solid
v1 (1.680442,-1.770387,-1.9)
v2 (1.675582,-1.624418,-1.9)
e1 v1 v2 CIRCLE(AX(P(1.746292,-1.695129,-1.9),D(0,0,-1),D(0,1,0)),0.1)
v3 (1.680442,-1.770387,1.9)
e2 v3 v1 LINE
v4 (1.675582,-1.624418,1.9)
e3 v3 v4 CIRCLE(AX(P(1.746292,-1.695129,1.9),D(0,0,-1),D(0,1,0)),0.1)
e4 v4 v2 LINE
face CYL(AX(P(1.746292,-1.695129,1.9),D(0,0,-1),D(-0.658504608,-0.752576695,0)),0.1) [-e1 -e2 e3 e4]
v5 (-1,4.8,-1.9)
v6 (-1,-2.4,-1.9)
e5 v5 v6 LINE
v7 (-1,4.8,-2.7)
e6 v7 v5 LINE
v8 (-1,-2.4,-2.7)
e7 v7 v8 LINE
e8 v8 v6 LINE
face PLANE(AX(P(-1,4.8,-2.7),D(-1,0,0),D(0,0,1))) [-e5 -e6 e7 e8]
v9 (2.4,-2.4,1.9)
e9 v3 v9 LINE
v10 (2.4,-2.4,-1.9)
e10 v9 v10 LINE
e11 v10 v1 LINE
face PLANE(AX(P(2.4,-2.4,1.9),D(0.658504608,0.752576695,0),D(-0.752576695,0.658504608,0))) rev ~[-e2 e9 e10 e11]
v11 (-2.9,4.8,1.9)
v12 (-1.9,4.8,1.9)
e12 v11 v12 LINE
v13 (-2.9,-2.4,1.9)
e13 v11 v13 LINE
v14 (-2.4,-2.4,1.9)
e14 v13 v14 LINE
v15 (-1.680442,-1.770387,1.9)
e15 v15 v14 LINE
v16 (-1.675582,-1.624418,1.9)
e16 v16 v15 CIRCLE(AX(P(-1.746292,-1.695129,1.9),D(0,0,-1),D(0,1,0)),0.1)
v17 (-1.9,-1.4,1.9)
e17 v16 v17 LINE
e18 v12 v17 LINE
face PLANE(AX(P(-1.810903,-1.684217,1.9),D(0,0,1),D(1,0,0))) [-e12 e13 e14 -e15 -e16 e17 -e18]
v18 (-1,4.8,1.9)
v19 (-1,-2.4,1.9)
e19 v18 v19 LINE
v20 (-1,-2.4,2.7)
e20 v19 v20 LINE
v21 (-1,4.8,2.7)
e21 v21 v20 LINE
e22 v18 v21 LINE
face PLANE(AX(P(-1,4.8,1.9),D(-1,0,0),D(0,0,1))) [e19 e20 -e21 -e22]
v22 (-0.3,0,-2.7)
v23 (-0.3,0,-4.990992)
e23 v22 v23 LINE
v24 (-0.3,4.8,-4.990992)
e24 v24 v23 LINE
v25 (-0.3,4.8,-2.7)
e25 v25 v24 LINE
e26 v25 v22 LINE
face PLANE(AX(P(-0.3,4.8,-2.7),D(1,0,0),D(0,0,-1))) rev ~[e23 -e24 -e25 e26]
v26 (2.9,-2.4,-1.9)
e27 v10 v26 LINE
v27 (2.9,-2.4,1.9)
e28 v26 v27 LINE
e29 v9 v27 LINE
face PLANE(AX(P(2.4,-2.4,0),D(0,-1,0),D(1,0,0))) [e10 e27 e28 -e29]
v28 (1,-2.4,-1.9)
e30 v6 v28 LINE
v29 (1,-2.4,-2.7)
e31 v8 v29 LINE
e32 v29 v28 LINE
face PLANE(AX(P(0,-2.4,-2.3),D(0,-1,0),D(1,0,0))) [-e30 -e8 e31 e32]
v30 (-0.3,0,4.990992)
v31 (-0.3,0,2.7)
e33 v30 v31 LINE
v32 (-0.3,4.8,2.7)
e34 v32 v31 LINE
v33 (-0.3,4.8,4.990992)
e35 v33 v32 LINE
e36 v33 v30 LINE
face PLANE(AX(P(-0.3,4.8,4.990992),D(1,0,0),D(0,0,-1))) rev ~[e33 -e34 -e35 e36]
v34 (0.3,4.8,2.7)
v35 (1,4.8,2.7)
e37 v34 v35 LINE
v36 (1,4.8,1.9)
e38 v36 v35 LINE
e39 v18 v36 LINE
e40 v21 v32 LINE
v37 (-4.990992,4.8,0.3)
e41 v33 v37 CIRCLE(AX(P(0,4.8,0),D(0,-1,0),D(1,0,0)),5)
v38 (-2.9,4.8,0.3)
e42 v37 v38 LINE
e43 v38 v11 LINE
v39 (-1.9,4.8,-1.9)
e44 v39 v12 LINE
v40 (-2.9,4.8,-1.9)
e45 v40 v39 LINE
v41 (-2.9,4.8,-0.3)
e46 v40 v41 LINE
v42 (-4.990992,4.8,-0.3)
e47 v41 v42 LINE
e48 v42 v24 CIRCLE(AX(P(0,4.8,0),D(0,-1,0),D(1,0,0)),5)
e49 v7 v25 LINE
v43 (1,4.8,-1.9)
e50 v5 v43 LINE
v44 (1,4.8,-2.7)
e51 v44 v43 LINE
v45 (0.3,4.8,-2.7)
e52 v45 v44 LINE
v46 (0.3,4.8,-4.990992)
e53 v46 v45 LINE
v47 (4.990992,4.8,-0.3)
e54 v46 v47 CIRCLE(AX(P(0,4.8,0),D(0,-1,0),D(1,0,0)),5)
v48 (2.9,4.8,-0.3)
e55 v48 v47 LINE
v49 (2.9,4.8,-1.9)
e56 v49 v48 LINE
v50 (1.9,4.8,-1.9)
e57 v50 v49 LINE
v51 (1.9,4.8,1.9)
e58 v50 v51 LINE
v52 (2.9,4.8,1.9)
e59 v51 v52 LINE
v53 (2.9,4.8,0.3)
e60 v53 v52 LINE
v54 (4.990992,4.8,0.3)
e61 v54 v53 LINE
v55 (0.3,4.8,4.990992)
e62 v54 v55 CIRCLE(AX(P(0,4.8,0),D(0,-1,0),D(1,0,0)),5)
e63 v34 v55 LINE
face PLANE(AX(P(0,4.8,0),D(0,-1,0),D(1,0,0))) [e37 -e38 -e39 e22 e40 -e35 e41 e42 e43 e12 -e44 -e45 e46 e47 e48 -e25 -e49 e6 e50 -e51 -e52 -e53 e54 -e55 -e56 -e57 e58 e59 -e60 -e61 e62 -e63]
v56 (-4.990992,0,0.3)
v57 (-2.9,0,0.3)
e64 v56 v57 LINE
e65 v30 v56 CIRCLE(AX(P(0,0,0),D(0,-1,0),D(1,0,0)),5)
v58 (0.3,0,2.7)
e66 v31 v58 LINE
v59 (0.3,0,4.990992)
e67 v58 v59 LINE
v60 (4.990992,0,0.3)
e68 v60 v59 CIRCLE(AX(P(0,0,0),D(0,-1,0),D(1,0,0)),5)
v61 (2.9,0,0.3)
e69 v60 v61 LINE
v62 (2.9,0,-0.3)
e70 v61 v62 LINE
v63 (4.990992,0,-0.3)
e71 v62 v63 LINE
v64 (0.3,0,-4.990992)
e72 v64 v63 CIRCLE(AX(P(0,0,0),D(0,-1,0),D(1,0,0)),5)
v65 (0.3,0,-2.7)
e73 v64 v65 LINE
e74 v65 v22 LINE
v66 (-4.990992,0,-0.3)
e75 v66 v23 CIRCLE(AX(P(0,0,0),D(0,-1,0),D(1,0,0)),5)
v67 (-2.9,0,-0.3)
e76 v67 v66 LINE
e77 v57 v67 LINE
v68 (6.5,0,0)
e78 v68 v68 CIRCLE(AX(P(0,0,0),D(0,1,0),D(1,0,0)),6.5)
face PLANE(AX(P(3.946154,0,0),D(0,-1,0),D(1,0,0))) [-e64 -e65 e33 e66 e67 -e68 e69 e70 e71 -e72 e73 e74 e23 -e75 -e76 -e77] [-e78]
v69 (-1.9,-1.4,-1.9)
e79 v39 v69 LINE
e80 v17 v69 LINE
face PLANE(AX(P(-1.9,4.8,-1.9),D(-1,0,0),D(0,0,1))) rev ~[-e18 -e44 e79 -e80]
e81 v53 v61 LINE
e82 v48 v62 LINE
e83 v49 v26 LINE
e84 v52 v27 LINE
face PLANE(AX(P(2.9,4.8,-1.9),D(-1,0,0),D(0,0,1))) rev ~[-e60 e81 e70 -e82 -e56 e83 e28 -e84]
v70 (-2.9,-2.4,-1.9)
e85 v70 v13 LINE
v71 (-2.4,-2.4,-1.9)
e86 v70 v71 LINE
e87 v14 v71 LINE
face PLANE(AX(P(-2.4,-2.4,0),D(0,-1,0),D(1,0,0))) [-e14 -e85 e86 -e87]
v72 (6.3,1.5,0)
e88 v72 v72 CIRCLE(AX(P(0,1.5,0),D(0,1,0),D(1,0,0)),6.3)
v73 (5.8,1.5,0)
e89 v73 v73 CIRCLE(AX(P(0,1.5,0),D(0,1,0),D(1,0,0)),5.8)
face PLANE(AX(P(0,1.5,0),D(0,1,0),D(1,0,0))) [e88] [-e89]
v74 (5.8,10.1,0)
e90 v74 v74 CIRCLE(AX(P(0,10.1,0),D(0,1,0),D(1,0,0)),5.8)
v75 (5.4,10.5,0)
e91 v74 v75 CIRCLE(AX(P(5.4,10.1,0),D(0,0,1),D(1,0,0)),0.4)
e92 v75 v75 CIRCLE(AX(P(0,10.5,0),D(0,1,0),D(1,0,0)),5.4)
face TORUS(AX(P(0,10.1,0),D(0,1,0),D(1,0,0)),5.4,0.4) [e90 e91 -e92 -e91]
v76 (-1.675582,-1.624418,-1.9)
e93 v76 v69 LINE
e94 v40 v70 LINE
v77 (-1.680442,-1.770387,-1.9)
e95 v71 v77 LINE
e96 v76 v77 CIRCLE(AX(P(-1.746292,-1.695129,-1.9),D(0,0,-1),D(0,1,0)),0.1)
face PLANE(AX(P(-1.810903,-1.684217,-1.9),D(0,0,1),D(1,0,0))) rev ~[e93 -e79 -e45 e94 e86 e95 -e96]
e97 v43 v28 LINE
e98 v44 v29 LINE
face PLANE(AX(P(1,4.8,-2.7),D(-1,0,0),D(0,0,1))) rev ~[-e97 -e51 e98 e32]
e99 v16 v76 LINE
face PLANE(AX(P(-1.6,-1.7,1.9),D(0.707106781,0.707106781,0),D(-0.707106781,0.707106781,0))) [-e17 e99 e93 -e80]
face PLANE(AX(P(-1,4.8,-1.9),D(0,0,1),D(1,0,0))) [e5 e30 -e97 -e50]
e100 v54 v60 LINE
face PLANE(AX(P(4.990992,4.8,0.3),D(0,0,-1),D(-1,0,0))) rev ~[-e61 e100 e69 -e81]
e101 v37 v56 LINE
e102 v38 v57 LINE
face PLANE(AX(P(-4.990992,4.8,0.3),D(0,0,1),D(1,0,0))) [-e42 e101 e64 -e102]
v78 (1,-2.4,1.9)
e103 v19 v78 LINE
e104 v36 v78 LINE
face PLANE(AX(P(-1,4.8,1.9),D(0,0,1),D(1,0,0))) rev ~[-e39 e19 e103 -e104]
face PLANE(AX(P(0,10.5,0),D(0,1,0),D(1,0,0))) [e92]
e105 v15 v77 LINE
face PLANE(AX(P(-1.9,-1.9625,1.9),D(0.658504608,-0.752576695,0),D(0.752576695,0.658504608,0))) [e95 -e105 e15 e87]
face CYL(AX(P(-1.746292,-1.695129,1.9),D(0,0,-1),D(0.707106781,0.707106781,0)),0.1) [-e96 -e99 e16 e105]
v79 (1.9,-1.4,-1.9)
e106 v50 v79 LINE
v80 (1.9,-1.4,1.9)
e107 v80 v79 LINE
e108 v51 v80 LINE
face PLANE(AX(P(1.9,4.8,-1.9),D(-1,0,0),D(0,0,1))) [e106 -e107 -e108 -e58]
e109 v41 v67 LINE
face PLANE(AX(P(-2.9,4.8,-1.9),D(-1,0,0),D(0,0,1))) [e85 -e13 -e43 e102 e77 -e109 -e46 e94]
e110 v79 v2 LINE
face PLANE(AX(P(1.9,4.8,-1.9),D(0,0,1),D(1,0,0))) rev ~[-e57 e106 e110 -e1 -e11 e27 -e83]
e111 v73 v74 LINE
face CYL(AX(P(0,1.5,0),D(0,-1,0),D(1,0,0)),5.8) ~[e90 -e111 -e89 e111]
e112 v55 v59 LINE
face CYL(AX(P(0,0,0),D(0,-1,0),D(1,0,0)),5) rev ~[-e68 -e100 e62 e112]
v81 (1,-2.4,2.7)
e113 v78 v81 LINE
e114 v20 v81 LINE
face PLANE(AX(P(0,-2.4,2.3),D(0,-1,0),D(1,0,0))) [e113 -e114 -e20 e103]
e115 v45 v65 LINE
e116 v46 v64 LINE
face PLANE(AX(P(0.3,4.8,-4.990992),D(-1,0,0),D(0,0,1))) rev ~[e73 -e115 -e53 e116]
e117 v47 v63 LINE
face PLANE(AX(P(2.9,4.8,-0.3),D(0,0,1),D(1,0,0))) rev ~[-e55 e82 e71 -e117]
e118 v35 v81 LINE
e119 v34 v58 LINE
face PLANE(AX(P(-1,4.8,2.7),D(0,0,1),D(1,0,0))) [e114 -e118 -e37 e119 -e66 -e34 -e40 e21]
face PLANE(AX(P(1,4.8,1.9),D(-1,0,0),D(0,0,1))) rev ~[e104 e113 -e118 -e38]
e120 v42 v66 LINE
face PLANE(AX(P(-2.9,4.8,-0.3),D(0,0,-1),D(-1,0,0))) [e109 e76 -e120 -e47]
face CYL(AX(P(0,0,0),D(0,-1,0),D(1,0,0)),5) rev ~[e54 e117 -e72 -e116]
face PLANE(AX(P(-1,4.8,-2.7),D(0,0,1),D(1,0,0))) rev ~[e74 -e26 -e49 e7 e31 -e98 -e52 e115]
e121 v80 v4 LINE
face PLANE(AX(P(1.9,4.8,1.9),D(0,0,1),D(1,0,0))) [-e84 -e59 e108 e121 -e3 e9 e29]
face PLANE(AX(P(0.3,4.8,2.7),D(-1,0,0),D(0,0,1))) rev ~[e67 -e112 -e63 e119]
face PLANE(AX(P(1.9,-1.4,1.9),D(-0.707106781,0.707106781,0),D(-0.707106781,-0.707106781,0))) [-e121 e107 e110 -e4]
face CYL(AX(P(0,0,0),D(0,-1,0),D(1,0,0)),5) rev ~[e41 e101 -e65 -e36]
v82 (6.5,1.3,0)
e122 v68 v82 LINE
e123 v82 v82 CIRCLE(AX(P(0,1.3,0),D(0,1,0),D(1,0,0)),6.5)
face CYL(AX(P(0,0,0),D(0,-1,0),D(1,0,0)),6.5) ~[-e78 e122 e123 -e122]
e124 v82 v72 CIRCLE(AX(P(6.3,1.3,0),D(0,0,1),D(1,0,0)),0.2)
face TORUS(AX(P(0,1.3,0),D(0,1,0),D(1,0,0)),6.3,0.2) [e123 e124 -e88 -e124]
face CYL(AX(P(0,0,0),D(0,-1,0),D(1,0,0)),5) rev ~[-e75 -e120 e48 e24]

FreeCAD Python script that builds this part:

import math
import FreeCAD as App
import Part
import Sketcher
Q = App.Units.Quantity


def edges_at(feature, points):
    """Names of the edges that pass closest to the given points."""
    edges = feature.Shape.Edges
    near = lambda p: min(range(len(edges)), key=lambda i: edges[i].distToShape(Part.Vertex(*p))[0])
    return sorted({f"Edge{near(p) + 1}" for p in points})


def add_polygon(sketch, points):
    """Adds a closed chain of lines whose ends are joined by coincident constraints."""
    first, n = sketch.GeometryCount, len(points)
    for a, b in zip(points, points[1:] + points[:1]):
        sketch.addGeometry(Part.LineSegment(App.Vector(*a, 0), App.Vector(*b, 0)), False)
    for i in range(n):
        sketch.addConstraint(Sketcher.Constraint("Coincident", first + i, 2, first + (i + 1) % n, 1))

doc = App.newDocument("Part")
body = doc.addObject("PartDesign::Body", "Body")

# Sketch on XZ plane
sketch1 = body.newObject("Sketcher::SketchObject", "Sketch")
sketch1.AttachmentSupport = (doc.getObject("XZ_Plane"), [""])
sketch1.MapMode = "FlatFace"
sketch1.addGeometry(Part.Circle(App.Vector(0, 0, 0), App.Vector(0, 0, 1), 6), False)
sketch1.addConstraint(Sketcher.Constraint("Coincident", 0, 3, -1, 1))
sketch1.addConstraint(Sketcher.Constraint("Diameter", 0, Q("13 mm")))
pad1 = body.newObject("PartDesign::Pad", "Pad")
pad1.Profile = sketch1
pad1.Length = 1.5
pad1.Reversed = True

# Sketch on XZ plane
sketch2 = body.newObject("Sketcher::SketchObject", "Sketch001")
sketch2.AttachmentSupport = (doc.getObject("XZ_Plane"), [""])
sketch2.MapMode = "FlatFace"
sketch2.AttachmentOffset = App.Placement(App.Vector(0, 0, -1.5), App.Rotation())
sketch2.addGeometry(Part.Circle(App.Vector(0, 0, 0), App.Vector(0, 0, 1), 6), False)
sketch2.addConstraint(Sketcher.Constraint("Coincident", 0, 3, -1, 1))
sketch2.addConstraint(Sketcher.Constraint("Diameter", 0, Q("11.6 mm")))
pad2 = body.newObject("PartDesign::Pad", "Pad001")
pad2.Profile = sketch2
pad2.Length = 9
pad2.Reversed = True
doc.recompute()

fillet = body.newObject("PartDesign::Fillet", "Fillet")
fillet.Base = (pad2, edges_at(pad2, [(-5.8, 10.5, 0)]))
fillet.Radius = 0.4

# Sketch on XZ plane
sketch3 = body.newObject("Sketcher::SketchObject", "Sketch002")
sketch3.AttachmentSupport = (doc.getObject("XZ_Plane"), [""])
sketch3.MapMode = "FlatFace"
sketch3.addGeometry(Part.Circle(App.Vector(0, 0, 0), App.Vector(0, 0, 1), 5), False)
sketch3.addConstraint(Sketcher.Constraint("Coincident", 0, 3, -1, 1))
sketch3.addConstraint(Sketcher.Constraint("Diameter", 0, Q("10 mm")))
pocket1 = body.newObject("PartDesign::Pocket", "Pocket")
pocket1.Profile = sketch3
pocket1.Length = 4.8

# Sketch on XZ plane
sketch4 = body.newObject("Sketcher::SketchObject", "Sketch003")
sketch4.AttachmentSupport = (doc.getObject("XZ_Plane"), [""])
sketch4.MapMode = "FlatFace"
sketch4.AttachmentOffset = App.Placement(App.Vector(0, 0, -4.8), App.Rotation())
sketch4.addGeometry(Part.LineSegment(App.Vector(-2.9, 0.3, 0), App.Vector(-5, 0.3, 0)), False)
sketch4.addGeometry(Part.ArcOfCircle(Part.Circle(App.Vector(0, 0, 0), App.Vector(0, 0, 1), 5), math.radians(176.56), math.radians(183.44)), False)
sketch4.addGeometry(Part.LineSegment(App.Vector(-5, -0.3, 0), App.Vector(-2.9, -0.3, 0)), False)
sketch4.addGeometry(Part.LineSegment(App.Vector(-2.9, -0.3, 0), App.Vector(-2.9, 0.3, 0)), False)
sketch4.addGeometry(Part.LineSegment(App.Vector(2.9, 0.3, 0), App.Vector(2.9, -0.3, 0)), False)
sketch4.addGeometry(Part.LineSegment(App.Vector(2.9, -0.3, 0), App.Vector(5, -0.3, 0)), False)
sketch4.addGeometry(Part.ArcOfCircle(Part.Circle(App.Vector(0, 0, 0), App.Vector(0, 0, 1), 5), math.radians(-3.44), math.radians(3.44)), False)
sketch4.addGeometry(Part.LineSegment(App.Vector(5, 0.3, 0), App.Vector(2.9, 0.3, 0)), False)
sketch4.addGeometry(Part.LineSegment(App.Vector(-0.3, 5, 0), App.Vector(-0.3, 2.7, 0)), False)
sketch4.addGeometry(Part.LineSegment(App.Vector(-0.3, 2.7, 0), App.Vector(0.3, 2.7, 0)), False)
sketch4.addGeometry(Part.LineSegment(App.Vector(0.3, 2.7, 0), App.Vector(0.3, 5, 0)), False)
sketch4.addGeometry(Part.ArcOfCircle(Part.Circle(App.Vector(0, 0, 0), App.Vector(0, 0, 1), 5), math.radians(86.56), math.radians(93.44)), False)
sketch4.addGeometry(Part.LineSegment(App.Vector(0.3, -2.7, 0), App.Vector(-0.3, -2.7, 0)), False)
sketch4.addGeometry(Part.LineSegment(App.Vector(-0.3, -2.7, 0), App.Vector(-0.3, -5, 0)), False)
sketch4.addGeometry(Part.ArcOfCircle(Part.Circle(App.Vector(0, 0, 0), App.Vector(0, 0, 1), 5), math.radians(-93.44), math.radians(-86.56)), False)
sketch4.addGeometry(Part.LineSegment(App.Vector(0.3, -5, 0), App.Vector(0.3, -2.7, 0)), False)
sketch4.addConstraint(Sketcher.Constraint("Coincident", 0, 2, 1, 1))
sketch4.addConstraint(Sketcher.Constraint("Coincident", 1, 2, 2, 1))
sketch4.addConstraint(Sketcher.Constraint("Coincident", 2, 2, 3, 1))
sketch4.addConstraint(Sketcher.Constraint("Coincident", 3, 2, 0, 1))
sketch4.addConstraint(Sketcher.Constraint("Coincident", 4, 2, 5, 1))
sketch4.addConstraint(Sketcher.Constraint("Coincident", 5, 2, 6, 1))
sketch4.addConstraint(Sketcher.Constraint("Coincident", 6, 2, 7, 1))
sketch4.addConstraint(Sketcher.Constraint("Coincident", 7, 2, 4, 1))
sketch4.addConstraint(Sketcher.Constraint("Coincident", 8, 2, 9, 1))
sketch4.addConstraint(Sketcher.Constraint("Coincident", 9, 2, 10, 1))
sketch4.addConstraint(Sketcher.Constraint("Coincident", 10, 2, 11, 1))
sketch4.addConstraint(Sketcher.Constraint("Coincident", 11, 2, 8, 1))
sketch4.addConstraint(Sketcher.Constraint("Coincident", 12, 2, 13, 1))
sketch4.addConstraint(Sketcher.Constraint("Coincident", 13, 2, 14, 1))
sketch4.addConstraint(Sketcher.Constraint("Coincident", 14, 2, 15, 1))
sketch4.addConstraint(Sketcher.Constraint("Coincident", 15, 2, 12, 1))
sketch4.addConstraint(Sketcher.Constraint("Horizontal", 0))
sketch4.addConstraint(Sketcher.Constraint("Horizontal", 2))
sketch4.addConstraint(Sketcher.Constraint("Vertical", 3))
sketch4.addConstraint(Sketcher.Constraint("Vertical", 4))
sketch4.addConstraint(Sketcher.Constraint("Horizontal", 5))
sketch4.addConstraint(Sketcher.Constraint("Horizontal", 7))
sketch4.addConstraint(Sketcher.Constraint("Vertical", 8))
sketch4.addConstraint(Sketcher.Constraint("Horizontal", 9))
sketch4.addConstraint(Sketcher.Constraint("Vertical", 10))
sketch4.addConstraint(Sketcher.Constraint("Horizontal", 12))
sketch4.addConstraint(Sketcher.Constraint("Vertical", 13))
sketch4.addConstraint(Sketcher.Constraint("Vertical", 15))
sketch4.addConstraint(Sketcher.Constraint("Coincident", 1, 3, -1, 1))
sketch4.addConstraint(Sketcher.Constraint("Coincident", 6, 3, -1, 1))
sketch4.addConstraint(Sketcher.Constraint("Coincident", 11, 3, -1, 1))
sketch4.addConstraint(Sketcher.Constraint("Coincident", 14, 3, -1, 1))
sketch4.addConstraint(Sketcher.Constraint("Equal", 1, 6))
sketch4.addConstraint(Sketcher.Constraint("Equal", 6, 11))
sketch4.addConstraint(Sketcher.Constraint("Equal", 11, 14))
sketch4.addConstraint(Sketcher.Constraint("Symmetric", 3, 2, 4, 2, -1, 1))
sketch4.addConstraint(Sketcher.Constraint("Symmetric", 9, 2, 12, 2, -1, 1))
sketch4.addConstraint(Sketcher.Constraint("Horizontal", 2, 2, 4, 2))
sketch4.addConstraint(Sketcher.Constraint("Horizontal", 3, 2, 6, 2))
sketch4.addConstraint(Sketcher.Constraint("Horizontal", 10, 2, 11, 2))
sketch4.addConstraint(Sketcher.Constraint("Horizontal", 13, 2, 14, 2))
sketch4.addConstraint(Sketcher.Constraint("Equal", 12, 3))
sketch4.addConstraint(Sketcher.Constraint("Radius", 1, Q("5 mm")))
sketch4.addConstraint(Sketcher.Constraint("DistanceX", 9, 1, 9, 2, Q("0.6 mm")))
sketch4.addConstraint(Sketcher.Constraint("DistanceX", 2, 2, -1, 1, Q("2.9 mm")))
sketch4.addConstraint(Sketcher.Constraint("DistanceY", -1, 1, 8, 2, Q("2.7 mm")))
pad3 = body.newObject("PartDesign::Pad", "Pad002")
pad3.Profile = sketch4
pad3.Length = 4.8

# Sketch on XZ plane
sketch5 = body.newObject("Sketcher::SketchObject", "Sketch004")
sketch5.AttachmentSupport = (doc.getObject("XZ_Plane"), [""])
sketch5.MapMode = "FlatFace"
sketch5.AttachmentOffset = App.Placement(App.Vector(0, 0, -4.8), App.Rotation())
add_polygon(sketch5, [(-1, 2.7), (-1, 1.9), (1, 1.9), (1, 2.7)])  # lines 0-3
add_polygon(sketch5, [(-2.9, 1.9), (-2.9, -1.9), (-1.9, -1.9), (-1.9, 1.9)])  # lines 4-7
add_polygon(sketch5, [(1.9, 1.9), (1.9, -1.9), (2.9, -1.9), (2.9, 1.9)])  # lines 8-11
add_polygon(sketch5, [(-1, -1.9), (-1, -2.7), (1, -2.7), (1, -1.9)])  # lines 12-15
sketch5.addConstraint(Sketcher.Constraint("Vertical", 0))
sketch5.addConstraint(Sketcher.Constraint("Horizontal", 1))
sketch5.addConstraint(Sketcher.Constraint("Vertical", 2))
sketch5.addConstraint(Sketcher.Constraint("Horizontal", 3))
sketch5.addConstraint(Sketcher.Constraint("Vertical", 4))
sketch5.addConstraint(Sketcher.Constraint("Horizontal", 5))
sketch5.addConstraint(Sketcher.Constraint("Vertical", 6))
sketch5.addConstraint(Sketcher.Constraint("Horizontal", 7))
sketch5.addConstraint(Sketcher.Constraint("Vertical", 8))
sketch5.addConstraint(Sketcher.Constraint("Horizontal", 9))
sketch5.addConstraint(Sketcher.Constraint("Vertical", 10))
sketch5.addConstraint(Sketcher.Constraint("Horizontal", 11))
sketch5.addConstraint(Sketcher.Constraint("Vertical", 12))
sketch5.addConstraint(Sketcher.Constraint("Horizontal", 13))
sketch5.addConstraint(Sketcher.Constraint("Vertical", 14))
sketch5.addConstraint(Sketcher.Constraint("Horizontal", 15))
sketch5.addConstraint(Sketcher.Constraint("Symmetric", 6, 2, 8, 2, -1, 1))
sketch5.addConstraint(Sketcher.Constraint("Symmetric", 4, 2, 10, 2, -1, 1))
sketch5.addConstraint(Sketcher.Constraint("Symmetric", 2, 2, 12, 2, -1, 1))
sketch5.addConstraint(Sketcher.Constraint("Symmetric", 0, 2, 14, 2, -1, 1))
sketch5.addConstraint(Sketcher.Constraint("Horizontal", 1, 2, 6, 2))
sketch5.addConstraint(Sketcher.Constraint("Horizontal", 5, 2, 8, 2))
sketch5.addConstraint(Sketcher.Constraint("Vertical", 3, 2, 12, 2))
sketch5.addConstraint(Sketcher.Constraint("DistanceX", 1, 1, 1, 2, Q("2 mm")))
sketch5.addConstraint(Sketcher.Constraint("DistanceX", 5, 1, 5, 2, Q("1 mm")))
sketch5.addConstraint(Sketcher.Constraint("DistanceY", 0, 2, 0, 1, Q("0.8 mm")))
sketch5.addConstraint(Sketcher.Constraint("DistanceY", 4, 2, 4, 1, Q("3.8 mm")))
sketch5.addConstraint(Sketcher.Constraint("DistanceX", 4, 2, -1, 1, Q("2.9 mm")))
pad4 = body.newObject("PartDesign::Pad", "Pad003")
pad4.Profile = sketch5
pad4.Length = 7.2

# Sketch on XY plane
sketch6 = body.newObject("Sketcher::SketchObject", "Sketch005")
sketch6.AttachmentSupport = (doc.getObject("XY_Plane"), [""])
sketch6.MapMode = "FlatFace"
sketch6.AttachmentOffset = App.Placement(App.Vector(0, 0, 1.9), App.Rotation())
add_polygon(sketch6, [(-1.9, -2.4), (-1.9, -1.96), (-2.4, -2.4)])  # lines 0-2
sketch6.addConstraint(Sketcher.Constraint("Vertical", 0))
sketch6.addConstraint(Sketcher.Constraint("Horizontal", 2))
sketch6.addConstraint(Sketcher.Constraint("DistanceX", 2, 1, 2, 2, Q("0.5 mm")))
sketch6.addConstraint(Sketcher.Constraint("DistanceX", 0, 2, -1, 1, Q("1.9 mm")))
sketch6.addConstraint(Sketcher.Constraint("DistanceY", 1, 2, -1, 1, Q("2.4 mm")))
sketch6.addConstraint(Sketcher.Constraint("DistanceY", 0, 1, 0, 2, Q("0.4375 mm")))
pocket2 = body.newObject("PartDesign::Pocket", "Pocket001")
pocket2.Profile = sketch6
pocket2.Type = "UpToFirst"

# Sketch on XY plane
sketch7 = body.newObject("Sketcher::SketchObject", "Sketch006")
sketch7.AttachmentSupport = (doc.getObject("XY_Plane"), [""])
sketch7.MapMode = "FlatFace"
sketch7.AttachmentOffset = App.Placement(App.Vector(0, 0, 1.9), App.Rotation())
add_polygon(sketch7, [(1.9, -1.96), (1.9, -2.4), (2.4, -2.4)])  # lines 0-2
sketch7.addConstraint(Sketcher.Constraint("Vertical", 0))
sketch7.addConstraint(Sketcher.Constraint("Horizontal", 1))
sketch7.addConstraint(Sketcher.Constraint("DistanceX", 1, 1, 1, 2, Q("0.5 mm")))
sketch7.addConstraint(Sketcher.Constraint("DistanceX", -1, 1, 0, 2, Q("1.9 mm")))
sketch7.addConstraint(Sketcher.Constraint("DistanceY", 0, 2, -1, 1, Q("2.4 mm")))
sketch7.addConstraint(Sketcher.Constraint("DistanceY", 0, 2, 0, 1, Q("0.4375 mm")))
pocket3 = body.newObject("PartDesign::Pocket", "Pocket002")
pocket3.Profile = sketch7
pocket3.Type = "UpToFirst"

# Sketch on XY plane
sketch8 = body.newObject("Sketcher::SketchObject", "Sketch007")
sketch8.AttachmentSupport = (doc.getObject("XY_Plane"), [""])
sketch8.MapMode = "FlatFace"
sketch8.AttachmentOffset = App.Placement(App.Vector(0, 0, 1.9), App.Rotation())
add_polygon(sketch8, [(-1.6, -1.7), (-1.9, -1.4), (-1.9, -1.96)])  # lines 0-2
add_polygon(sketch8, [(1.6, -1.7), (1.9, -1.96), (1.9, -1.4)])  # lines 3-5
sketch8.addConstraint(Sketcher.Constraint("Vertical", 1))
sketch8.addConstraint(Sketcher.Constraint("Vertical", 4))
sketch8.addConstraint(Sketcher.Constraint("Symmetric", 1, 2, 3, 2, -2))
sketch8.addConstraint(Sketcher.Constraint("Symmetric", 2, 2, 5, 2, -2))
sketch8.addConstraint(Sketcher.Constraint("Perpendicular", 0, 5))
sketch8.addConstraint(Sketcher.Constraint("Horizontal", 0, 2, 4, 2))
sketch8.addConstraint(Sketcher.Constraint("DistanceX", 0, 2, -1, 1, Q("1.9 mm")))
sketch8.addConstraint(Sketcher.Constraint("DistanceY", 0, 2, -1, 1, Q("1.4 mm")))
sketch8.addConstraint(Sketcher.Constraint("DistanceX", 2, 2, -1, 1, Q("1.6 mm")))
sketch8.addConstraint(Sketcher.Constraint("DistanceY", 1, 2, 1, 1, Q("0.5625 mm")))
pad5 = body.newObject("PartDesign::Pad", "Pad004")
pad5.Profile = sketch8
pad5.Length = 3.8
pad5.Reversed = True
doc.recompute()

fillet2 = body.newObject("PartDesign::Fillet", "Fillet001")
fillet2.Base = (pad5, edges_at(pad5, [(-1.6, -1.7, 0), (1.6, -1.7, 0)]))
fillet2.Radius = 0.1
doc.recompute()

fillet3 = body.newObject("PartDesign::Fillet", "Fillet002")
fillet3.Base = (fillet2, edges_at(fillet2, [(-6.5, 1.5, 0)]))
fillet3.Radius = 0.2

doc.recompute()
